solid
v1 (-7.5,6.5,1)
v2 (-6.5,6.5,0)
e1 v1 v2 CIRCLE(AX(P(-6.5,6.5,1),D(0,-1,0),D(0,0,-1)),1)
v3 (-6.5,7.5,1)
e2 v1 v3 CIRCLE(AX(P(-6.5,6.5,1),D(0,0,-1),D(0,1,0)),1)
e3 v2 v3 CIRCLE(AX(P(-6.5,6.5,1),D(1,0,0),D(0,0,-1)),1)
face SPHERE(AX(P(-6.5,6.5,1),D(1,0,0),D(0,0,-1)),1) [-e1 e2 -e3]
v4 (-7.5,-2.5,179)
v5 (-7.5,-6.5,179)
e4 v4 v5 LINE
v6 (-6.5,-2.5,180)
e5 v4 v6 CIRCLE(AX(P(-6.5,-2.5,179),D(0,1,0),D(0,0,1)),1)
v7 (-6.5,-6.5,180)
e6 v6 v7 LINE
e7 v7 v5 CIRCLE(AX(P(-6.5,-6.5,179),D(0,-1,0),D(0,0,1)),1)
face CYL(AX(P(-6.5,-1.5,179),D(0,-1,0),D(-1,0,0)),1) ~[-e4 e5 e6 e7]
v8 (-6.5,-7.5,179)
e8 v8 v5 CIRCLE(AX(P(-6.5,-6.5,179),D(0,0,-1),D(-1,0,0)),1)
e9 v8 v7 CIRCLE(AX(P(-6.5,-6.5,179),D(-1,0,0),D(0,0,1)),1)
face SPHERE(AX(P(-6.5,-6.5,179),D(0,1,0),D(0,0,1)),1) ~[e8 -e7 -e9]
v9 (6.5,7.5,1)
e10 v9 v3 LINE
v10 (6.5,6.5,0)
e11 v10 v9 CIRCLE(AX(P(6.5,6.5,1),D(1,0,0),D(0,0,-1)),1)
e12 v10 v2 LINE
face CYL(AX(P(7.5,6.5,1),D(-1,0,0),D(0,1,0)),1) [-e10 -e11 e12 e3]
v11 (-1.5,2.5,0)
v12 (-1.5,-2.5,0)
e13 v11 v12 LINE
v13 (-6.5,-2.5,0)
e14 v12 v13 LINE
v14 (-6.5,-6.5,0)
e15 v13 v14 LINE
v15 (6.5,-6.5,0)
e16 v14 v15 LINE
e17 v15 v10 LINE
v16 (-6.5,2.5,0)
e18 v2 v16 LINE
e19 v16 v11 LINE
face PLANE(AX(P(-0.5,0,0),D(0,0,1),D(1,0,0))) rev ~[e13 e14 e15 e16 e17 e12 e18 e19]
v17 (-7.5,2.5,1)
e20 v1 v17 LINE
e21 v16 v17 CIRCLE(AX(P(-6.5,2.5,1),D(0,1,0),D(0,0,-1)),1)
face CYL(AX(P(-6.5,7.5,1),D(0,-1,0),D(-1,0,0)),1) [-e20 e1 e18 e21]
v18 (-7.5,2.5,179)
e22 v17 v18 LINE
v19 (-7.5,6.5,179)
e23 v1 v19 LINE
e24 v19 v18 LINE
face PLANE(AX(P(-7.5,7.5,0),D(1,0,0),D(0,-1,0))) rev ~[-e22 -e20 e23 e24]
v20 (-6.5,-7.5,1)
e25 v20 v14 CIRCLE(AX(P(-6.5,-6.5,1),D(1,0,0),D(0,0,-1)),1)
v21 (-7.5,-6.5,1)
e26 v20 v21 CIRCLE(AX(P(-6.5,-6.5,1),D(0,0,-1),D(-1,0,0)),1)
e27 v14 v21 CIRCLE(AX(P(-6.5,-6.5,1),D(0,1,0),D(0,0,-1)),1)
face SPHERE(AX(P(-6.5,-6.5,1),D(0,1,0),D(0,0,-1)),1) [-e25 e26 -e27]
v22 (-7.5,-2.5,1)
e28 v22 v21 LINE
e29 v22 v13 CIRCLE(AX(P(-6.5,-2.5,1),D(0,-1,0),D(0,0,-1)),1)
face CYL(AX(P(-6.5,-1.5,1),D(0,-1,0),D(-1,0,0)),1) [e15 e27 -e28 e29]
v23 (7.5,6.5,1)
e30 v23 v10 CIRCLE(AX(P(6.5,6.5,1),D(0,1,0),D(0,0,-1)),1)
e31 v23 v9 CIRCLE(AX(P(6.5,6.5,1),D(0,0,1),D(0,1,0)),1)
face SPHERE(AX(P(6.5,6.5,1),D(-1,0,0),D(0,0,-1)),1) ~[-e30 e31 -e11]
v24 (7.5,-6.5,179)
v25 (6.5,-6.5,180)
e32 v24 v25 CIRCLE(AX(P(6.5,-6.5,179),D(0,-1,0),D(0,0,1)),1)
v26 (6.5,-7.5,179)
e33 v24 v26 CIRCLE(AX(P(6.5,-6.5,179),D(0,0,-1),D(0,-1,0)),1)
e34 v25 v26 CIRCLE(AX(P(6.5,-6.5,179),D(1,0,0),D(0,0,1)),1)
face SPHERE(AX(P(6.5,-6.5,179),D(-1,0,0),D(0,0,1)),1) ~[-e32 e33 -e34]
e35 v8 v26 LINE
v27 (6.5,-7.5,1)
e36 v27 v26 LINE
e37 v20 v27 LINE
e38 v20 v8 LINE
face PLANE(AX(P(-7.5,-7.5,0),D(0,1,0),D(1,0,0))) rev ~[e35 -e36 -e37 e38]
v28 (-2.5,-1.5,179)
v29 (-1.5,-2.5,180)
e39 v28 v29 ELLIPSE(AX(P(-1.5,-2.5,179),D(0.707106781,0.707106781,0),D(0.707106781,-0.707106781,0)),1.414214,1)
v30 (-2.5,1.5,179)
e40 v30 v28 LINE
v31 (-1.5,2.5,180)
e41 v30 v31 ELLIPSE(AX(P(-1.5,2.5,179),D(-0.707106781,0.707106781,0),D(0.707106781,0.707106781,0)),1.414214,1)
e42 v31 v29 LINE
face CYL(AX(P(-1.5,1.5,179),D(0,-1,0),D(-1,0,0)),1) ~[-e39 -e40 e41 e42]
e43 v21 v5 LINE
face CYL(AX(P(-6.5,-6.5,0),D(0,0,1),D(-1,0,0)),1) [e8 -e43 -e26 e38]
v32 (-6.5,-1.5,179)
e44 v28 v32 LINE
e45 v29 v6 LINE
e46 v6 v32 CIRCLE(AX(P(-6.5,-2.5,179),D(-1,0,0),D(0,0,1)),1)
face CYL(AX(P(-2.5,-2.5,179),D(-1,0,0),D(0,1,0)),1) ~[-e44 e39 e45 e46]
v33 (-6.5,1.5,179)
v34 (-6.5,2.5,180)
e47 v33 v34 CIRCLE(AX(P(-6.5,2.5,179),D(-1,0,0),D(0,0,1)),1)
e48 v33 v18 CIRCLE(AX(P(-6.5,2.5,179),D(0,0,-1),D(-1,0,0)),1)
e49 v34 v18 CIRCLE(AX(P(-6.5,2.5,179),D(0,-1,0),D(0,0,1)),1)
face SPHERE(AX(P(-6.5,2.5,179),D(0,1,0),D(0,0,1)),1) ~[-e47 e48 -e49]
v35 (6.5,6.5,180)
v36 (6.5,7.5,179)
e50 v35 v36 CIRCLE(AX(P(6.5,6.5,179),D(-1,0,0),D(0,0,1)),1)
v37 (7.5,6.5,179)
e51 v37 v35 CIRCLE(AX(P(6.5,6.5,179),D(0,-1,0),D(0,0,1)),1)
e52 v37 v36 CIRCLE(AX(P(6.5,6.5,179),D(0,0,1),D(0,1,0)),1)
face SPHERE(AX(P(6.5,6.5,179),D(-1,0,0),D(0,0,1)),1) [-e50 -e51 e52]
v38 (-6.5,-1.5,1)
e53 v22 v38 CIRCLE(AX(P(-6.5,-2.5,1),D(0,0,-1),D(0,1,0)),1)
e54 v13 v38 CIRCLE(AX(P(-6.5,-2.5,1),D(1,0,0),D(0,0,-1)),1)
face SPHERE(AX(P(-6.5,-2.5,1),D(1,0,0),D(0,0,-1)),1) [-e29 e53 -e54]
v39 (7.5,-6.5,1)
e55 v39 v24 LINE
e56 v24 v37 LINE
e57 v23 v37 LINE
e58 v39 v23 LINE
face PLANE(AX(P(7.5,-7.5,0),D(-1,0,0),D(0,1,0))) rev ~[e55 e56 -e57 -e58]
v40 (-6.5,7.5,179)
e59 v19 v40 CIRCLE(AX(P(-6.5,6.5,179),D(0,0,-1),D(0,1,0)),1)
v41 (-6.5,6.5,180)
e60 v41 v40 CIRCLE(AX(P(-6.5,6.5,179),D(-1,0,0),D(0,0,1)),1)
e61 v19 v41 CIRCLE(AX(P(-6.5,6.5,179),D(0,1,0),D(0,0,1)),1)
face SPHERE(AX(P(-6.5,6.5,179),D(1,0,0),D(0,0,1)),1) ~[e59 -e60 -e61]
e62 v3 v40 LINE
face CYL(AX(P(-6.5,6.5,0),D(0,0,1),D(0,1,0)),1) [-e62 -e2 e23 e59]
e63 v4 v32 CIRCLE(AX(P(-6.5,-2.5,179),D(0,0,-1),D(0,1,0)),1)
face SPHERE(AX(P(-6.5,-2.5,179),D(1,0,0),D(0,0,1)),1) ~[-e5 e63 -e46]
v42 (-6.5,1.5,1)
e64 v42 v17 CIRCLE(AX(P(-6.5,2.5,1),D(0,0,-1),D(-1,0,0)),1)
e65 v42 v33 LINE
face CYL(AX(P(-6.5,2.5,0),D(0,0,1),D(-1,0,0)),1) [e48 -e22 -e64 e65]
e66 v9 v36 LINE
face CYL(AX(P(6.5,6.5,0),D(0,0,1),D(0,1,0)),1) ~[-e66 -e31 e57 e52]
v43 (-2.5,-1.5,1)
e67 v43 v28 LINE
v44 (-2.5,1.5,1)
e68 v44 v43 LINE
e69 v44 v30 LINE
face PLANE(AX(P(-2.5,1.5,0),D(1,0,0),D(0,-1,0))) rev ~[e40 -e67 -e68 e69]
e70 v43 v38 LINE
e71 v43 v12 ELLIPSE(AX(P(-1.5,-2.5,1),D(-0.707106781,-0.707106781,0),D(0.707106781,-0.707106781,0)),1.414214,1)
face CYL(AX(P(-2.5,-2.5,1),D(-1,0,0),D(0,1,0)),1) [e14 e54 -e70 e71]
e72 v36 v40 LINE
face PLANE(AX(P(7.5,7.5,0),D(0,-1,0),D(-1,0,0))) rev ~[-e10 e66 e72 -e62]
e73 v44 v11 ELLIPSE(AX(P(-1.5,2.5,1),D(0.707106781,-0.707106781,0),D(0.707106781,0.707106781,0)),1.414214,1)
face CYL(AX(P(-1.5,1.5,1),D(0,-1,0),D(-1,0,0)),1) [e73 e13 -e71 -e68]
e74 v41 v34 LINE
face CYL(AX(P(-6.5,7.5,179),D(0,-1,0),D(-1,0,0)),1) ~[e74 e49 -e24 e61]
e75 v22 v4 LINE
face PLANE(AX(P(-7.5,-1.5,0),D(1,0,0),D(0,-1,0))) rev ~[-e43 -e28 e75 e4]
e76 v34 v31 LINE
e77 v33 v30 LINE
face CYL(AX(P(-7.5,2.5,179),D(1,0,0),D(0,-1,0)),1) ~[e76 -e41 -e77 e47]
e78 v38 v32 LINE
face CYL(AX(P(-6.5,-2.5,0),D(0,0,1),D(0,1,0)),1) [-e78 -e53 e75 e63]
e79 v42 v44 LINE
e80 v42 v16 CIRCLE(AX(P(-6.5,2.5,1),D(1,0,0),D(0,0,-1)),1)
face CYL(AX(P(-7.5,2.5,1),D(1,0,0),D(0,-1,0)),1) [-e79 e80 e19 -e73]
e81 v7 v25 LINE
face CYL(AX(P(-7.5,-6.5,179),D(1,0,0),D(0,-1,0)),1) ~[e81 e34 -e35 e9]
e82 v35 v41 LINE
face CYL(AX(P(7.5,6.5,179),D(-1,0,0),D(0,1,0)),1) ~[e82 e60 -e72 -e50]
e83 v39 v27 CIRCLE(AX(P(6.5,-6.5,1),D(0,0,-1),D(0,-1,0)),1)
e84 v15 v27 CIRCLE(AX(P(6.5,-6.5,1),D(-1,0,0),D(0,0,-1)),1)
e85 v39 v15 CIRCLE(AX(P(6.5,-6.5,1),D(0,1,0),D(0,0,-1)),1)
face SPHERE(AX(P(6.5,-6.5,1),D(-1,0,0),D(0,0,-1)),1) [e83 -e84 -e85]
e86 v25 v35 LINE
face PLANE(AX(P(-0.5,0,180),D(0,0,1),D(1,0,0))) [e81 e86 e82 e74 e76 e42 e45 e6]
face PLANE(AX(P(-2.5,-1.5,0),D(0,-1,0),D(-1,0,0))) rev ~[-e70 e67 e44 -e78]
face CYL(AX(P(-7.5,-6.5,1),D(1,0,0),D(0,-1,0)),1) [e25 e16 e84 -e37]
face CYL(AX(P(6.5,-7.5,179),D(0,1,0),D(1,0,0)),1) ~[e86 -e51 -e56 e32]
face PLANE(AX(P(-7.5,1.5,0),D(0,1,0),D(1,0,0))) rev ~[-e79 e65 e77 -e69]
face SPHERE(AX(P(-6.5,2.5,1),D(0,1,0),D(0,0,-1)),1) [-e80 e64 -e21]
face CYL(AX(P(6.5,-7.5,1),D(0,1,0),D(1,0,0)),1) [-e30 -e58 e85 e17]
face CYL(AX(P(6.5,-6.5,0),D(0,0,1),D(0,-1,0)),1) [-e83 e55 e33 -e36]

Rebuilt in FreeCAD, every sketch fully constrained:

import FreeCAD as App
import Part
import Sketcher
Q = App.Units.Quantity


def edges_at(feature, points):
    """Names of the edges that pass closest to the given points."""
    edges = feature.Shape.Edges
    near = lambda p: min(range(len(edges)), key=lambda i: edges[i].distToShape(Part.Vertex(*p))[0])
    return sorted({f"Edge{near(p) + 1}" for p in points})


def add_polygon(sketch, points):
    """Adds a closed chain of lines whose ends are joined by coincident constraints."""
    first, n = sketch.GeometryCount, len(points)
    for a, b in zip(points, points[1:] + points[:1]):
        sketch.addGeometry(Part.LineSegment(App.Vector(*a, 0), App.Vector(*b, 0)), False)
    for i in range(n):
        sketch.addConstraint(Sketcher.Constraint("Coincident", first + i, 2, first + (i + 1) % n, 1))

doc = App.newDocument("Part")
body = doc.addObject("PartDesign::Body", "Body")

# Sketch on XY plane
sketch1 = doc.addObject("Sketcher::SketchObject", "Sketch")
body.addObject(sketch1)
sketch1.AttachmentSupport = (doc.XY_Plane, [""])
sketch1.MapMode = "FlatFace"
add_polygon(sketch1, [(7.5, 7.5), (-7.5, 7.5), (-7.5, 1.5), (-2.5, 1.5), (-2.5, -1.5), (-7.5, -1.5), (-7.5, -7.5), (7.5, -7.5)])  # lines 0-7
sketch1.addConstraint([
    Sketcher.Constraint("Horizontal", 0),
    Sketcher.Constraint("Vertical", 1),
    Sketcher.Constraint("Horizontal", 2),
    Sketcher.Constraint("Vertical", 3),
    Sketcher.Constraint("Horizontal", 4),
    Sketcher.Constraint("Vertical", 5),
    Sketcher.Constraint("Horizontal", 6),
    Sketcher.Constraint("Vertical", 7),
    Sketcher.Constraint("Symmetric", 0, 2, 6, 2, -1, 1),
    Sketcher.Constraint("Symmetric", 1, 2, 4, 2, -1),
    Sketcher.Constraint("Equal", 6, 7),
    Sketcher.Constraint("DistanceX", 0, 2, 0, 1, Q("15 mm")),
    Sketcher.Constraint("DistanceX", 2, 1, 2, 2, Q("5 mm")),
    Sketcher.Constraint("DistanceY", 1, 2, 1, 1, Q("6 mm")),
])
pad1 = doc.addObject("PartDesign::Pad", "Pad")
body.addObject(pad1)
pad1.Profile = sketch1
pad1.Length = 180
doc.recompute()

fillet = doc.addObject("PartDesign::Fillet", "Fillet")
body.addObject(fillet)
fillet.Base = (pad1, edges_at(pad1, [
    (0, 7.5, 180),
    (-7.5, 4.5, 180),
    (-5, 1.5, 180),
    (-2.5, 0, 180),
    (-5, -1.5, 180),
    (-7.5, -4.5, 180),
    (0, -7.5, 180),
    (7.5, 0, 180),
    (0, 7.5, 0),
    (-7.5, 4.5, 0),
    (-5, 1.5, 0),
    (-2.5, 0, 0),
    (-5, -1.5, 0),
    (-7.5, -4.5, 0),
    (0, -7.5, 0),
    (7.5, 0, 0),
    (7.5, 7.5, 90),
    (-7.5, 7.5, 90),
    (7.5, -7.5, 90),
    (-7.5, -1.5, 90),
    (-7.5, -7.5, 90),
    (-7.5, 1.5, 90),
]))
fillet.Radius = 1

doc.recompute()
